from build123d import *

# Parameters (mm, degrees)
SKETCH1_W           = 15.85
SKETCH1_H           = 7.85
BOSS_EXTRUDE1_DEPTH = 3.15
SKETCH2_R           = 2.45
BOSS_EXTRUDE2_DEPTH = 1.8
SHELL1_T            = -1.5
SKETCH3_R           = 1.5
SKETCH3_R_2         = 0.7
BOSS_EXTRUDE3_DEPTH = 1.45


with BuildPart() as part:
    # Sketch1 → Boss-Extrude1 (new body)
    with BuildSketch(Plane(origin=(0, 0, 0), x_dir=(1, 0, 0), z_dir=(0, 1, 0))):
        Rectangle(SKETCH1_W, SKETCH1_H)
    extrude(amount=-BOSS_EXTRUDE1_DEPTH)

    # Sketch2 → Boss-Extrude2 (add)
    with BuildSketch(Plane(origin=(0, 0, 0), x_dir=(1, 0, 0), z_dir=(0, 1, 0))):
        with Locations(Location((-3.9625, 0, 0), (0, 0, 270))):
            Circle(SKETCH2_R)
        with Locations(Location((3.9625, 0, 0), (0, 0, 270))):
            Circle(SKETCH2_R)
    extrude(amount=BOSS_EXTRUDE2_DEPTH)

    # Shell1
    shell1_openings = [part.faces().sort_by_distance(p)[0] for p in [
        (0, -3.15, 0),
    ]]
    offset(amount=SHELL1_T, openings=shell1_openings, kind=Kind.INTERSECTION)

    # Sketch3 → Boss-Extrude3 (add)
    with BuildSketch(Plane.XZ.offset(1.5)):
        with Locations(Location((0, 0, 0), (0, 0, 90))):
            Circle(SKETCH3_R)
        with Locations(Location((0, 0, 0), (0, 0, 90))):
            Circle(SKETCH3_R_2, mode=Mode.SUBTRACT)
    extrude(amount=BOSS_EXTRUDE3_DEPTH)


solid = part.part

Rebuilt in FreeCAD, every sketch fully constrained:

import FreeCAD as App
import Part
import Sketcher


def faces_at(feature, points):
    """Names of the faces that lie closest to the given points."""
    faces = feature.Shape.Faces
    near = lambda p: min(range(len(faces)), key=lambda i: faces[i].distToShape(Part.Vertex(*p))[0])
    return sorted({f"Face{near(p) + 1}" for p in points})

doc = App.newDocument("Part")
body = doc.addObject("PartDesign::Body", "Body")

sketch1 = body.newObject("Sketcher::SketchObject", "Sketch")
sketch1.AttachmentSupport = (doc.getObject("XZ_Plane"), [""])
sketch1.MapMode = "FlatFace"
sketch1.addGeometry([
    Part.LineSegment(App.Vector(-8, -4, 0), App.Vector(-8, 4, 0)),
    Part.LineSegment(App.Vector(-8, 4, 0), App.Vector(8, 4, 0)),
    Part.LineSegment(App.Vector(8, 4, 0), App.Vector(8, -4, 0)),
    Part.LineSegment(App.Vector(8, -4, 0), App.Vector(-8, -4, 0)),
], False)
sketch1.addConstraint([
    Sketcher.Constraint("Coincident", 0, 2, 1, 1),
    Sketcher.Constraint("Coincident", 1, 2, 2, 1),
    Sketcher.Constraint("Coincident", 2, 2, 3, 1),
    Sketcher.Constraint("Coincident", 3, 2, 0, 1),
    Sketcher.Constraint("Vertical", 0),
    Sketcher.Constraint("Horizontal", 1),
    Sketcher.Constraint("Vertical", 2),
    Sketcher.Constraint("Horizontal", 3),
    Sketcher.Constraint("Symmetric", 0, 2, 2, 2, -1, 1),
    Sketcher.Constraint("DistanceX", 1, 1, 1, 2, 15.85),
    Sketcher.Constraint("DistanceY", 0, 1, 0, 2, 7.85),
])
pad1 = body.newObject("PartDesign::Pad", "Pad")
pad1.Profile = sketch1
pad1.Length = 3.15

sketch2 = body.newObject("Sketcher::SketchObject", "Sketch001")
sketch2.AttachmentSupport = (doc.getObject("XZ_Plane"), [""])
sketch2.MapMode = "FlatFace"
sketch2.addGeometry([
    Part.Circle(App.Vector(-4, 0, 0), App.Vector(0, 0, 1), 2.5),
    Part.Circle(App.Vector(4, 0, 0), App.Vector(0, 0, 1), 2.5),
], False)
sketch2.addConstraint([
    Sketcher.Constraint("Equal", 0, 1),
    Sketcher.Constraint("Symmetric", 0, 3, 1, 3, -1, 1),
    Sketcher.Constraint("PointOnObject", 0, 3, -1),
    Sketcher.Constraint("Diameter", 0, 4.9),
    Sketcher.Constraint("DistanceX", 0, 3, 1, 3, 7.925),
])
pad2 = body.newObject("PartDesign::Pad", "Pad001")
pad2.Profile = sketch2
pad2.Length = 1.8
pad2.Reversed = True
doc.recompute()

thickness = body.newObject("PartDesign::Thickness", "Thickness")
thickness.Base = (pad2, faces_at(pad2, [(0, -3.15, 0)]))
thickness.Value = 1.5
thickness.Reversed = True
thickness.Join = "Intersection"

sketch3 = body.newObject("Sketcher::SketchObject", "Sketch002")
sketch3.AttachmentSupport = (doc.getObject("XZ_Plane"), [""])
sketch3.MapMode = "FlatFace"
sketch3.AttachmentOffset = App.Placement(App.Vector(0, 0, 1.5), App.Rotation())
sketch3.addGeometry([
    Part.Circle(App.Vector(0, 0, 0), App.Vector(0, 0, 1), 1.5),
    Part.Circle(App.Vector(0, 0, 0), App.Vector(0, 0, 1), 0.7),
], False)
sketch3.addConstraint([
    Sketcher.Constraint("Coincident", 0, 3, -1, 1),
    Sketcher.Constraint("Coincident", 1, 3, -1, 1),
    Sketcher.Constraint("Diameter", 0, 3.0),
    Sketcher.Constraint("Diameter", 1, 1.4),
])
pad3 = body.newObject("PartDesign::Pad", "Pad002")
pad3.Profile = sketch3
pad3.Length = 1.45

doc.recompute()
